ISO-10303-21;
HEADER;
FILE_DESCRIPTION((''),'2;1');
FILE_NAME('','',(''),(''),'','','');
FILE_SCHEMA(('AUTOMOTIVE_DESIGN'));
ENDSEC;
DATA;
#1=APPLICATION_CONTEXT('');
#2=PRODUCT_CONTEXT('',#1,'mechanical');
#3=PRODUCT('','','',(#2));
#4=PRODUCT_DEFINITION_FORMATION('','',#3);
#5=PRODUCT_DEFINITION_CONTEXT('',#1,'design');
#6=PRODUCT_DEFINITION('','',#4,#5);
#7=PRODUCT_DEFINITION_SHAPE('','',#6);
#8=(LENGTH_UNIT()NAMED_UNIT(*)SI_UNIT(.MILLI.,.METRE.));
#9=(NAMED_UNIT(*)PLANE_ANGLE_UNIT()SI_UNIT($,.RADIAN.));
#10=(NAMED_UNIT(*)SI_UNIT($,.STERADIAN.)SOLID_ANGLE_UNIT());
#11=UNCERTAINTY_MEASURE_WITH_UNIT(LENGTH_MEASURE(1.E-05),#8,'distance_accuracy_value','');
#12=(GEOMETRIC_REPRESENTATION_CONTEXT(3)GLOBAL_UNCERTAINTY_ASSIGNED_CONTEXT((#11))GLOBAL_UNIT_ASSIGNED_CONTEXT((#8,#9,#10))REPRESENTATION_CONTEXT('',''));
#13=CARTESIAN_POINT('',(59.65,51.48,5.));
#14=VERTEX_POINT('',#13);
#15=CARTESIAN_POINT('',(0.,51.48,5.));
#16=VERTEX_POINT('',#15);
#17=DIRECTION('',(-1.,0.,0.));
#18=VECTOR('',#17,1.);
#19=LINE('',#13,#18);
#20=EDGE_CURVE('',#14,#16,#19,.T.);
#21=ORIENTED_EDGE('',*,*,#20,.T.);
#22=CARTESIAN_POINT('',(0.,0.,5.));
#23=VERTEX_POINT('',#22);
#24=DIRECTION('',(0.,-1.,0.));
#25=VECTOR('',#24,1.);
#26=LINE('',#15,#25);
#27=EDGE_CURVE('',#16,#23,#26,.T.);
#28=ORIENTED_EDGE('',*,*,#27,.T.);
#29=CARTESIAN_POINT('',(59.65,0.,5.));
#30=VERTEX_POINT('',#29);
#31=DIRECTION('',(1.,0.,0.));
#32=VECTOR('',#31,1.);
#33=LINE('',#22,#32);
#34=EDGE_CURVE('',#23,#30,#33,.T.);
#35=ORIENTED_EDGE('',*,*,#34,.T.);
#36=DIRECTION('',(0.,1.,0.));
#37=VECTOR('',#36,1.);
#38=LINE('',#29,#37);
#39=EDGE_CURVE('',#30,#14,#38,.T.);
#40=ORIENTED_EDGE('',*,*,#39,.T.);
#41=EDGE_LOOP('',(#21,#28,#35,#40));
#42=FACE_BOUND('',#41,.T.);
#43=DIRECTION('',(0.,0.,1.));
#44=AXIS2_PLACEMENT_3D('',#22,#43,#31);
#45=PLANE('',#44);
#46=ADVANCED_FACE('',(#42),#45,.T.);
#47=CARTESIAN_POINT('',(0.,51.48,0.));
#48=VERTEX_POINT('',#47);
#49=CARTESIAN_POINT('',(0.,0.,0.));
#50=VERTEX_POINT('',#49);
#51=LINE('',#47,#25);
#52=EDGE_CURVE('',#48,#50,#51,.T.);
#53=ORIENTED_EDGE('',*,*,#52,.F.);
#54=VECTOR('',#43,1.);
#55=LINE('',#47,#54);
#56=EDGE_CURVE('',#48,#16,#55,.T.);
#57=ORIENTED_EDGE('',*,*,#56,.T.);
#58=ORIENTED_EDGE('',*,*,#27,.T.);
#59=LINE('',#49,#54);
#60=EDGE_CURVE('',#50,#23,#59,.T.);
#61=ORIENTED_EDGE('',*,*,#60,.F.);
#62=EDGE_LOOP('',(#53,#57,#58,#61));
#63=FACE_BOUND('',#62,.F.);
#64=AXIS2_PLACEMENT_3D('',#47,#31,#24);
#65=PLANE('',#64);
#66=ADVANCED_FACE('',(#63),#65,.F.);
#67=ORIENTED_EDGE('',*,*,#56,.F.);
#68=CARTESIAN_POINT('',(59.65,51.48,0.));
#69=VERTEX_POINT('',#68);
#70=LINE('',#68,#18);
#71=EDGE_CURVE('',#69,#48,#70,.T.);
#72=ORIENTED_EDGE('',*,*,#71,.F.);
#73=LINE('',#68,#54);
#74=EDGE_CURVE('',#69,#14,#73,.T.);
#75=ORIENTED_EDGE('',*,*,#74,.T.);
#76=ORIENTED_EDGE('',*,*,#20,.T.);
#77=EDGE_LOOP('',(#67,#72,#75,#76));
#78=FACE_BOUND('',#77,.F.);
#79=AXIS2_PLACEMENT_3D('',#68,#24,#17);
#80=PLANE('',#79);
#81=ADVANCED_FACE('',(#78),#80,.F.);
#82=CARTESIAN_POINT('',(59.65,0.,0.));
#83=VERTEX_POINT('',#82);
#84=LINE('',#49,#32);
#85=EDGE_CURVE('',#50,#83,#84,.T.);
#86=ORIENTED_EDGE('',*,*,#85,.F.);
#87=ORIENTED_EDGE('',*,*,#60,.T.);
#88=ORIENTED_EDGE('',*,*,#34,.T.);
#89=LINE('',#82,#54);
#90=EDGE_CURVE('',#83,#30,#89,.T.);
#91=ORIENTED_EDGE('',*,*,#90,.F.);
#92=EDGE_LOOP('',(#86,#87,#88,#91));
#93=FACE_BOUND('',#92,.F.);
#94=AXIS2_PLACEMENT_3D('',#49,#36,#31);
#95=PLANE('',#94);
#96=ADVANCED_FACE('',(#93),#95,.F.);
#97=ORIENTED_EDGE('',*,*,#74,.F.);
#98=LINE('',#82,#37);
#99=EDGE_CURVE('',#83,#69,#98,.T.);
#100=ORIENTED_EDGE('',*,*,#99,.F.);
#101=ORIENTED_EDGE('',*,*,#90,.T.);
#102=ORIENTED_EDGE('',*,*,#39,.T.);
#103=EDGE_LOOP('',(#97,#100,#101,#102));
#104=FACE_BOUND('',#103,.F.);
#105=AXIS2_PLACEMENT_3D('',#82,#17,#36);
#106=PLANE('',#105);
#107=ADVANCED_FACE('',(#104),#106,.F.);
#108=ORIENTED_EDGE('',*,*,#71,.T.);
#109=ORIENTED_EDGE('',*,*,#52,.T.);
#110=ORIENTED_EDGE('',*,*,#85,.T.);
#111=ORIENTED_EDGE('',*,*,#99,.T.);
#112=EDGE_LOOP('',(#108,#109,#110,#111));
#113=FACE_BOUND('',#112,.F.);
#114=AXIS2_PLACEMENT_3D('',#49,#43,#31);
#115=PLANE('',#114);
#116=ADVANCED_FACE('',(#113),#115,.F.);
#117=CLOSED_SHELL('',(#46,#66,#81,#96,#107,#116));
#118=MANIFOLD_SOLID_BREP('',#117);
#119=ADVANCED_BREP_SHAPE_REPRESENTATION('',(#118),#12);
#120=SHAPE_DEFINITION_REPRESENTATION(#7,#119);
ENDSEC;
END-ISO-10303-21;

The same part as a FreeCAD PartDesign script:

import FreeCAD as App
import Part
import Sketcher
from FreeCAD import Vector

doc = App.newDocument("Part")
body = doc.addObject("PartDesign::Body", "Body")

sketch1 = body.newObject("Sketcher::SketchObject", "Sketch")
sketch1.AttachmentSupport = (doc.getObject("XY_Plane"), [""])
sketch1.MapMode = "FlatFace"
sketch1.addGeometry(Part.LineSegment(Vector(0, 51, 0), Vector(0, 0, 0)), False)
sketch1.addGeometry(Part.LineSegment(Vector(0, 0, 0), Vector(60, 0, 0)), False)
sketch1.addGeometry(Part.LineSegment(Vector(60, 0, 0), Vector(60, 51, 0)), False)
sketch1.addGeometry(Part.LineSegment(Vector(60, 51, 0), Vector(0, 51, 0)), False)
sketch1.addConstraint(Sketcher.Constraint("Coincident", 0, 2, 1, 1))
sketch1.addConstraint(Sketcher.Constraint("Coincident", 1, 2, 2, 1))
sketch1.addConstraint(Sketcher.Constraint("Coincident", 2, 2, 3, 1))
sketch1.addConstraint(Sketcher.Constraint("Coincident", 3, 2, 0, 1))
sketch1.addConstraint(Sketcher.Constraint("Vertical", 0))
sketch1.addConstraint(Sketcher.Constraint("Horizontal", 1))
sketch1.addConstraint(Sketcher.Constraint("Vertical", 2))
sketch1.addConstraint(Sketcher.Constraint("Horizontal", 3))
sketch1.addConstraint(Sketcher.Constraint("Coincident", 0, 2, -1, 1))
sketch1.addConstraint(Sketcher.Constraint("DistanceX", 1, 1, 1, 2, 59.65))
sketch1.addConstraint(Sketcher.Constraint("DistanceY", 0, 2, 0, 1, 51.48))
pad1 = body.newObject("PartDesign::Pad", "Pad")
pad1.Profile = sketch1
pad1.Length = 5

doc.recompute()
